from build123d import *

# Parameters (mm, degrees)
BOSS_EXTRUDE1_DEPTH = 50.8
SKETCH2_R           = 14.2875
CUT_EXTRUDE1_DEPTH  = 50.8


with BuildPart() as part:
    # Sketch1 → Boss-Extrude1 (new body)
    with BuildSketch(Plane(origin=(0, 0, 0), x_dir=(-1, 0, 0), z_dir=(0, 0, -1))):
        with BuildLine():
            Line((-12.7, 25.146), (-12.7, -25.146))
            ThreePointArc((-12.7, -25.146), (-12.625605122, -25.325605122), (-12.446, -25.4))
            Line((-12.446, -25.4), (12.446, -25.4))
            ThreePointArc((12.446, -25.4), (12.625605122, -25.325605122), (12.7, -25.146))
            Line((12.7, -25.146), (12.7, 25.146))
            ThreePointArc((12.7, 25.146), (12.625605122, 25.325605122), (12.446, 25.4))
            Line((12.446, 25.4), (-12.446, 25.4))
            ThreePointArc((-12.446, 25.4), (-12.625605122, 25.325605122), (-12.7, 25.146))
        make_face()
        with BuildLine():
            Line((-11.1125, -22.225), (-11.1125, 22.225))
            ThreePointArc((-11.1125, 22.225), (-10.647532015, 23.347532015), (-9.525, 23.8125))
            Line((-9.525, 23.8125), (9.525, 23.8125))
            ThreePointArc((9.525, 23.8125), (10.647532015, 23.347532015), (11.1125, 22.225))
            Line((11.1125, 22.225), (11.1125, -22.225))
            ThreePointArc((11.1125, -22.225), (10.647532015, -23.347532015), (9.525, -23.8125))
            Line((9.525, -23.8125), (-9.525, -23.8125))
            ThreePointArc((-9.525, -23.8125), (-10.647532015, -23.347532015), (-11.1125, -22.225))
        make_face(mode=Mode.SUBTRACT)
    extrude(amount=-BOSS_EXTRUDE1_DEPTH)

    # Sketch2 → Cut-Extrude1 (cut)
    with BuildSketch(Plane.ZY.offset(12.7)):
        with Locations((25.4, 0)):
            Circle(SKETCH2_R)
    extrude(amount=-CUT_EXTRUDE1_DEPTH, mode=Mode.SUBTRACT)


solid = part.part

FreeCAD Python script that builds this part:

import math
import FreeCAD as App
import Part
import Sketcher

V = App.Vector
Q = App.Units.Quantity

doc = App.newDocument("Part")
params = doc.addObject("Spreadsheet::Sheet", "Params")
for row, (alias, value) in enumerate([
    ("sketch1_radius", "0.01 in"),
    ("sketch1_radius2", "0.0625 in"),
    ("sketch1_width", "0.98 in"),
    ("sketch1_width2", "0.75 in"),
    ("sketch1_height", "1.75 in"),
    ("pad1_length", "2 in"),
    ("sketch2_diameter", "1.125 in"),
    ("pocket1_length", "2 in"),
], start=1):
    params.set(f"A{row}", alias)
    params.set(f"B{row}", "=" + value)
    params.setAlias(f"B{row}", alias)

body = doc.addObject("PartDesign::Body", "Body")

# Sketch on XY plane
sketch1 = body.newObject("Sketcher::SketchObject", "Sketch")
sketch1.AttachmentSupport = (doc.getObject("XY_Plane"), [""])
sketch1.MapMode = "FlatFace"
sketch1.addGeometry([
    Part.LineSegment(V(12.7, 25.15, 0), V(12.7, -25.15, 0)),  # 0
    Part.ArcOfCircle(Part.Circle(V(12.45, -25.15, 0), V(0, 0, 1), 0.25), math.radians(-90), math.radians(0)),  # 1
    Part.LineSegment(V(12.45, -25.4, 0), V(-12.45, -25.4, 0)),  # 2
    Part.ArcOfCircle(Part.Circle(V(-12.45, -25.15, 0), V(0, 0, 1), 0.25), math.radians(-180), math.radians(-90)),  # 3
    Part.LineSegment(V(-12.7, -25.15, 0), V(-12.7, 25.15, 0)),  # 4
    Part.ArcOfCircle(Part.Circle(V(-12.45, 25.15, 0), V(0, 0, 1), 0.25), math.radians(90), math.radians(180)),  # 5
    Part.LineSegment(V(-12.45, 25.4, 0), V(12.45, 25.4, 0)),  # 6
    Part.ArcOfCircle(Part.Circle(V(12.45, 25.15, 0), V(0, 0, 1), 0.25), math.radians(0), math.radians(90)),  # 7
    Part.ArcOfCircle(Part.Circle(V(9.53, -22.23, 0), V(0, 0, 1), 1.59), math.radians(-90), math.radians(0)),  # 8
    Part.LineSegment(V(11.11, -22.23, 0), V(11.11, 22.23, 0)),  # 9
    Part.ArcOfCircle(Part.Circle(V(9.53, 22.23, 0), V(0, 0, 1), 1.59), math.radians(0), math.radians(90)),  # 10
    Part.LineSegment(V(9.53, 23.81, 0), V(-9.53, 23.81, 0)),  # 11
    Part.ArcOfCircle(Part.Circle(V(-9.53, 22.23, 0), V(0, 0, 1), 1.59), math.radians(90), math.radians(180)),  # 12
    Part.LineSegment(V(-11.11, 22.23, 0), V(-11.11, -22.23, 0)),  # 13
    Part.ArcOfCircle(Part.Circle(V(-9.53, -22.23, 0), V(0, 0, 1), 1.59), math.radians(180), math.radians(270)),  # 14
    Part.LineSegment(V(-9.53, -23.81, 0), V(9.53, -23.81, 0)),  # 15
], False)
sketch1.addConstraint([
    Sketcher.Constraint("Tangent", 0, 2, 1, 2),
    Sketcher.Constraint("Tangent", 1, 1, 2, 1),
    Sketcher.Constraint("Tangent", 2, 2, 3, 2),
    Sketcher.Constraint("Tangent", 3, 1, 4, 1),
    Sketcher.Constraint("Tangent", 4, 2, 5, 2),
    Sketcher.Constraint("Tangent", 5, 1, 6, 1),
    Sketcher.Constraint("Tangent", 6, 2, 7, 2),
    Sketcher.Constraint("Tangent", 7, 1, 0, 1),
    Sketcher.Constraint("Tangent", 8, 2, 9, 1),
    Sketcher.Constraint("Tangent", 9, 2, 10, 1),
    Sketcher.Constraint("Tangent", 10, 2, 11, 1),
    Sketcher.Constraint("Tangent", 11, 2, 12, 1),
    Sketcher.Constraint("Tangent", 12, 2, 13, 1),
    Sketcher.Constraint("Tangent", 13, 2, 14, 1),
    Sketcher.Constraint("Tangent", 14, 2, 15, 1),
    Sketcher.Constraint("Tangent", 15, 2, 8, 1),
    Sketcher.Constraint("Vertical", 0),
    Sketcher.Constraint("Horizontal", 2),
    Sketcher.Constraint("Vertical", 4),
    Sketcher.Constraint("Horizontal", 6),
    Sketcher.Constraint("Vertical", 9),
    Sketcher.Constraint("Horizontal", 11),
    Sketcher.Constraint("Vertical", 13),
    Sketcher.Constraint("Horizontal", 15),
    Sketcher.Constraint("Equal", 1, 3),
    Sketcher.Constraint("Equal", 3, 5),
    Sketcher.Constraint("Equal", 5, 7),
    Sketcher.Constraint("Equal", 8, 10),
    Sketcher.Constraint("Equal", 10, 12),
    Sketcher.Constraint("Equal", 12, 14),
    Sketcher.Constraint("Symmetric", 1, 3, 5, 3, -1, 1),
    Sketcher.Constraint("Symmetric", 8, 3, 12, 3, -1, 1),
    Sketcher.Constraint("Radius", 1, Q("0.01 in")),
    Sketcher.Constraint("DistanceY", 1, 1, -1, 1, Q("1 in")),
    Sketcher.Constraint("Radius", 8, Q("0.0625 in")),
    Sketcher.Constraint("DistanceX", 2, 2, 2, 1, Q("0.98 in")),
    Sketcher.Constraint("DistanceX", 11, 2, 11, 1, Q("0.75 in")),
    Sketcher.Constraint("DistanceY", 9, 1, 9, 2, Q("1.75 in")),
])
sketch1.setExpression("Constraints[32]", "Params.sketch1_radius")
sketch1.setExpression("Constraints[34]", "Params.sketch1_radius2")
sketch1.setExpression("Constraints[35]", "Params.sketch1_width")
sketch1.setExpression("Constraints[36]", "Params.sketch1_width2")
sketch1.setExpression("Constraints[37]", "Params.sketch1_height")
pad1 = body.newObject("PartDesign::Pad", "Pad")
pad1.Profile = sketch1
pad1.setExpression("Length", "Params.pad1_length")

# Sketch on YZ plane
sketch2 = body.newObject("Sketcher::SketchObject", "Sketch001")
sketch2.AttachmentSupport = (doc.getObject("YZ_Plane"), [""])
sketch2.MapMode = "FlatFace"
sketch2.AttachmentOffset = App.Placement(V(0, 0, -0.5 * 25.4), App.Rotation())
sketch2.addGeometry(Part.Circle(V(0, 25, 0), V(0, 0, 1), 14), False)
sketch2.addConstraint([
    Sketcher.Constraint("PointOnObject", 0, 3, -2),
    Sketcher.Constraint("Diameter", 0, Q("1.125 in")),
    Sketcher.Constraint("DistanceY", -1, 1, 0, 3, Q("1 in")),
])
sketch2.setExpression("Constraints[1]", "Params.sketch2_diameter")
pocket1 = body.newObject("PartDesign::Pocket", "Pocket")
pocket1.Profile = sketch2
pocket1.setExpression("Length", "Params.pocket1_length")
pocket1.Reversed = True

doc.recompute()
